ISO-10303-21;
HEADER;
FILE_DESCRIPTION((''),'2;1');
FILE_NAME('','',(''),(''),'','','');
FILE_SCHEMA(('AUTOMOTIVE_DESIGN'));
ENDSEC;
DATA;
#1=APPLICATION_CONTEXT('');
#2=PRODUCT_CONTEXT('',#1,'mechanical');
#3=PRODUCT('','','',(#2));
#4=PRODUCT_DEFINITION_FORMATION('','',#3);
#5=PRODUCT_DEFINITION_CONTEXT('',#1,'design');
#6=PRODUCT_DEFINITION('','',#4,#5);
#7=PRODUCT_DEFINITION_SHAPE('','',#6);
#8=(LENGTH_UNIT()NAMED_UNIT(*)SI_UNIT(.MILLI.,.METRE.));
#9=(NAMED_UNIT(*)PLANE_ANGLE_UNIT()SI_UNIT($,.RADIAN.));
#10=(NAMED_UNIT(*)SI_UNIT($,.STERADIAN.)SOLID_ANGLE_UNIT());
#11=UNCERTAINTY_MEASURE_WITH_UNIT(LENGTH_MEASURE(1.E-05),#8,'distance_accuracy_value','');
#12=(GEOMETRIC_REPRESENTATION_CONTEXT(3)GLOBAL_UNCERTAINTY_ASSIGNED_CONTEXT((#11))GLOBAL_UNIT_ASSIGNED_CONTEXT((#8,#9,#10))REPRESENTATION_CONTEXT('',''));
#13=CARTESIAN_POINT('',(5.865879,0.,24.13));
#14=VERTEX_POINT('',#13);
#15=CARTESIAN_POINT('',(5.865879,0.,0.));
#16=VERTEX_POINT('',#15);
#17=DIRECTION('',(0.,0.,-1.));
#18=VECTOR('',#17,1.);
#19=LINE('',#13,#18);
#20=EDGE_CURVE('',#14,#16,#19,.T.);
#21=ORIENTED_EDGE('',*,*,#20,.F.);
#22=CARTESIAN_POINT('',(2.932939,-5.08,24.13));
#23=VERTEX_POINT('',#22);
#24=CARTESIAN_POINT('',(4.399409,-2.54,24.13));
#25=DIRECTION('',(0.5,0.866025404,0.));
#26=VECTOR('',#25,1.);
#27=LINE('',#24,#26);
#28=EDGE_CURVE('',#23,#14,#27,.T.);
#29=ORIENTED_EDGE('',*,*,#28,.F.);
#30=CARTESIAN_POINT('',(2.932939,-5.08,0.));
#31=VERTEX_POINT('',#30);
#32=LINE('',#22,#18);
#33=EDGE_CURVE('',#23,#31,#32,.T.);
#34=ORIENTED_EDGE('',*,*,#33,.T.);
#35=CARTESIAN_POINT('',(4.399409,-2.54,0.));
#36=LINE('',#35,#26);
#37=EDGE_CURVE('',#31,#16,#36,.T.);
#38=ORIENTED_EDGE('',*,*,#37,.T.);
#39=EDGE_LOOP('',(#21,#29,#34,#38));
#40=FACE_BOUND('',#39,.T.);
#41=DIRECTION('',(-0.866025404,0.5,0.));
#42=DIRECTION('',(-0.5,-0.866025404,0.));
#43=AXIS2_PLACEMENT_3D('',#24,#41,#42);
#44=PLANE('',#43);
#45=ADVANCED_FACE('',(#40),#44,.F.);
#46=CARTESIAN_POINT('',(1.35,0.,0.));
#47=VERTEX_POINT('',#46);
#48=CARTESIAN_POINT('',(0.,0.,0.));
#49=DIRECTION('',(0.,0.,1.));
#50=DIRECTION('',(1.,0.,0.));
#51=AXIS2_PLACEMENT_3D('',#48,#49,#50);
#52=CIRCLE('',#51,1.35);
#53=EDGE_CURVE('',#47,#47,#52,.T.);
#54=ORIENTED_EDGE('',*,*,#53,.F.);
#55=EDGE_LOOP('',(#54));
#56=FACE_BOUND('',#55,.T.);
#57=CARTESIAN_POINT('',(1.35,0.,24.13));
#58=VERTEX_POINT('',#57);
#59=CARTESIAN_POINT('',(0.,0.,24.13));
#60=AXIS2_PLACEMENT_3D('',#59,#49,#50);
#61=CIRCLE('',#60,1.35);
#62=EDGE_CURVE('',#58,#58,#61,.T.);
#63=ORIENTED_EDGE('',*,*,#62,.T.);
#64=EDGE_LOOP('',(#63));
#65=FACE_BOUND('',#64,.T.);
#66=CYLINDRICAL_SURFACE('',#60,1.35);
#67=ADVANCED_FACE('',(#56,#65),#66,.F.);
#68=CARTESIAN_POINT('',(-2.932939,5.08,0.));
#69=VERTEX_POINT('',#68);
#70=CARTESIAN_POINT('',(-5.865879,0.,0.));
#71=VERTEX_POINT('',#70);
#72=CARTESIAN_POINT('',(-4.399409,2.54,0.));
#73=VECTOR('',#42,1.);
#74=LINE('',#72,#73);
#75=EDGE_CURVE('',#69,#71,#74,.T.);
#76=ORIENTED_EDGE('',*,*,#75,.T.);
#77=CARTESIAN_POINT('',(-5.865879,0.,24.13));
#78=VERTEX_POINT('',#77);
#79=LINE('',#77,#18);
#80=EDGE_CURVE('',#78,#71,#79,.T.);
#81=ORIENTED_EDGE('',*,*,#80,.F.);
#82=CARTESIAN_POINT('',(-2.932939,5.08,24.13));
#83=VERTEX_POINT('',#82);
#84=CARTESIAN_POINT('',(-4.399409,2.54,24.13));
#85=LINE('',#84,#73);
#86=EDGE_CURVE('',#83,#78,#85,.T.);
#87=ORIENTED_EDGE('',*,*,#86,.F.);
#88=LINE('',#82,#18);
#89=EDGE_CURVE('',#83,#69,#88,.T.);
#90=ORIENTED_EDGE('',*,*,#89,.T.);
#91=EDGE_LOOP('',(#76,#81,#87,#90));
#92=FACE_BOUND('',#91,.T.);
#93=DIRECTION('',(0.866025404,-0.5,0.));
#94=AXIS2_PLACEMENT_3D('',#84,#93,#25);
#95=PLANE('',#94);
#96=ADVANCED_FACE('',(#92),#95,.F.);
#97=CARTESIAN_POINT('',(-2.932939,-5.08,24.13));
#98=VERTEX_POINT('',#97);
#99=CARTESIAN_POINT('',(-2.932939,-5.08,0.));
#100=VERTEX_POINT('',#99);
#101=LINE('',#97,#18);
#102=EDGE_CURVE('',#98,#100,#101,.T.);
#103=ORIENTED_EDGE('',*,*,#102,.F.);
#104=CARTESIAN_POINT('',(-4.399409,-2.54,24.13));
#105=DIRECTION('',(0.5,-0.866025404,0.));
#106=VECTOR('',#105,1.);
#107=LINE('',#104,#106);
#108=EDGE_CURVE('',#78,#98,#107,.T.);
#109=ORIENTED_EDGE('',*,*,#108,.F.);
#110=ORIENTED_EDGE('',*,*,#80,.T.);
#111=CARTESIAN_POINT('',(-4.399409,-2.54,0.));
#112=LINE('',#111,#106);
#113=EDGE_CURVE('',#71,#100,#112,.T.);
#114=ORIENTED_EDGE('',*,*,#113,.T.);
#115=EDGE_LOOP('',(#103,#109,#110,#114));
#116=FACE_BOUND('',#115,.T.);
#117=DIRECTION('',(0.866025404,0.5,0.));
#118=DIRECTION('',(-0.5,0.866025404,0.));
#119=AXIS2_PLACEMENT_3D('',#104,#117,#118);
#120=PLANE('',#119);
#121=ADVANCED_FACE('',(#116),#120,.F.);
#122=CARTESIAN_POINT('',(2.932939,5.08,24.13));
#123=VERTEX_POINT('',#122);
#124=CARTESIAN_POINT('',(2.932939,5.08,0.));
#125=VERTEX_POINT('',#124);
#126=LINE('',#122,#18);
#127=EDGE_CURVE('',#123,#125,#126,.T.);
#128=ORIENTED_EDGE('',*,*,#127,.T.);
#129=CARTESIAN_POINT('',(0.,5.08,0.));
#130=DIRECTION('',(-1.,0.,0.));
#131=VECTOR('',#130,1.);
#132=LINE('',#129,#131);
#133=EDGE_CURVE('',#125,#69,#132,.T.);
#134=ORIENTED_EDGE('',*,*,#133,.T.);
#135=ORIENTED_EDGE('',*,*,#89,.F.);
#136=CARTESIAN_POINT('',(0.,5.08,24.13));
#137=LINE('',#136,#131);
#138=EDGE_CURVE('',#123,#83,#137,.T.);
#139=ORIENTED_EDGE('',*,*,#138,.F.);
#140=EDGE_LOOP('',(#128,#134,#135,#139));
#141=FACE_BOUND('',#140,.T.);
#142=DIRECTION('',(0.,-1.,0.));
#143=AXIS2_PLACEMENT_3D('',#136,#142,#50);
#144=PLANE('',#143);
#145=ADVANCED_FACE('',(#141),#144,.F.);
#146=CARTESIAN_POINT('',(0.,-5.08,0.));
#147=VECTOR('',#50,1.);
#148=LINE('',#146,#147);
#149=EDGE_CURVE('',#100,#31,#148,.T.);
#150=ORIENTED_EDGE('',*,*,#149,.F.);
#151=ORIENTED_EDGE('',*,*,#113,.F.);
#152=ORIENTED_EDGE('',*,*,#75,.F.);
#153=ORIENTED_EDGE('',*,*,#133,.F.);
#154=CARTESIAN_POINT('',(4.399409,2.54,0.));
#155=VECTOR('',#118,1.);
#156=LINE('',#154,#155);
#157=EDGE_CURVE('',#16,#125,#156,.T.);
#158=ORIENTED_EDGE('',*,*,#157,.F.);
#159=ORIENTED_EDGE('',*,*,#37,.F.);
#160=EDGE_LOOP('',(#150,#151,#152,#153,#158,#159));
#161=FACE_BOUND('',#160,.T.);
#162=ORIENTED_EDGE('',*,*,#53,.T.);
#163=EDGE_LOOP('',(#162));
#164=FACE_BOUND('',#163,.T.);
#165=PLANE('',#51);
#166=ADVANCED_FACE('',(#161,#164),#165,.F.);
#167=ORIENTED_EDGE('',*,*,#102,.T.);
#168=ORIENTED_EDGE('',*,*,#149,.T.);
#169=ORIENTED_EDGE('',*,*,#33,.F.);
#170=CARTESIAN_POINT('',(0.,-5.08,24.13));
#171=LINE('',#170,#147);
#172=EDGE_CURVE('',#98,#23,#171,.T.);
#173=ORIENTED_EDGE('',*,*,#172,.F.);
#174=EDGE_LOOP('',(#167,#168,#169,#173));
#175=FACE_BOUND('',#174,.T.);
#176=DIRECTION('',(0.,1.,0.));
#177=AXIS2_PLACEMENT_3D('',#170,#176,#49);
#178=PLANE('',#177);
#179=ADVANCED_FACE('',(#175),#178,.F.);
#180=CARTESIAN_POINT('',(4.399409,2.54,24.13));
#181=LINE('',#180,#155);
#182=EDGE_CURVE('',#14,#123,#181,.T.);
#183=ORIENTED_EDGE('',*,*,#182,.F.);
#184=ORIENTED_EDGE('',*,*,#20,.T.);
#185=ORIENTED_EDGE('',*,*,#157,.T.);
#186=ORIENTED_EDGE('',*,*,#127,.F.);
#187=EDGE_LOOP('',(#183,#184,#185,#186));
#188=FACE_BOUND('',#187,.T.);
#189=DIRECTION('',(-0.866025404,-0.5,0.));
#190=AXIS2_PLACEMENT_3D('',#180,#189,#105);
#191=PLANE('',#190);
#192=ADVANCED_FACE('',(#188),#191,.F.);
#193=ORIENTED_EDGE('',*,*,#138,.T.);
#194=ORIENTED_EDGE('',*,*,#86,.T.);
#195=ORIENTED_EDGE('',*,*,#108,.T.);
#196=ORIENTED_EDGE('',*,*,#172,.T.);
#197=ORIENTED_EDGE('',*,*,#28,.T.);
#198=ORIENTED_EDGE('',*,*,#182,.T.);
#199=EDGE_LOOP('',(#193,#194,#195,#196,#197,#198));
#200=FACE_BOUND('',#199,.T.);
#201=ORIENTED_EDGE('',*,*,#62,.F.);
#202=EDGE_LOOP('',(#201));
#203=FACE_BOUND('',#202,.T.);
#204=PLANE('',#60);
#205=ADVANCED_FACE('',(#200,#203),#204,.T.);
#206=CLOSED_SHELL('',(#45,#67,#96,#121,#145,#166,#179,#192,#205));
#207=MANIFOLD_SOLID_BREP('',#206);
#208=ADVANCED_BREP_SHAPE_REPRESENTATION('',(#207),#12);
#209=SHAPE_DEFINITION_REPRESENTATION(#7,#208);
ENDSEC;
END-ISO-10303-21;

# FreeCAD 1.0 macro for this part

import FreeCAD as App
import Part
import Sketcher

V = App.Vector
Q = App.Units.Quantity


def add_polygon(sketch, points):
    """Adds a closed chain of lines whose ends are joined by coincident constraints."""
    first, n = sketch.GeometryCount, len(points)
    for a, b in zip(points, points[1:] + points[:1]):
        sketch.addGeometry(Part.LineSegment(App.Vector(*a, 0), App.Vector(*b, 0)), False)
    for i in range(n):
        sketch.addConstraint(Sketcher.Constraint("Coincident", first + i, 2, first + (i + 1) % n, 1))

doc = App.newDocument("Part")
body = doc.addObject("PartDesign::Body", "Body")

sketch1 = body.newObject("Sketcher::SketchObject", "Sketch")
sketch1.AttachmentSupport = (doc.getObject("XY_Plane"), [""])
sketch1.MapMode = "FlatFace"
add_polygon(sketch1, [(-2.9, 5.1), (-4.4, 2.5), (-5.9, 0), (-4.4, -2.5), (-2.9, -5.1), (2.9, -5.1), (4.4, -2.5), (5.9, 0), (4.4, 2.5), (2.9, 5.1)])
sketch1.addConstraint(Sketcher.Constraint("Horizontal", 4))
sketch1.addConstraint(Sketcher.Constraint("Horizontal", 9))
sketch1.addConstraint(Sketcher.Constraint("Symmetric", 0, 2, 5, 2, -1, 1))
sketch1.addConstraint(Sketcher.Constraint("Symmetric", 1, 2, 6, 2, -1, 1))
sketch1.addConstraint(Sketcher.Constraint("Symmetric", 2, 2, 7, 2, -1, 1))
sketch1.addConstraint(Sketcher.Constraint("Symmetric", 3, 2, 8, 2, -1, 1))
sketch1.addConstraint(Sketcher.Constraint("Symmetric", 2, 2, 5, 2, -2))
sketch1.addConstraint(Sketcher.Constraint("PointOnObject", 1, 2, -1))
sketch1.addConstraint(Sketcher.Constraint("Parallel", 0, 1))
sketch1.addConstraint(Sketcher.Constraint("Parallel", 2, 3))
sketch1.addConstraint(Sketcher.Constraint("Parallel", 1, 5))
sketch1.addConstraint(Sketcher.Constraint("Equal", 0, 1))
sketch1.addConstraint(Sketcher.Constraint("Angle", 0, Q("-120 deg")))
sketch1.addConstraint(Sketcher.Constraint("DistanceY", -1, 1, 0, 2, Q("2.54 mm")))
sketch1.addConstraint(Sketcher.Constraint("DistanceX", 4, 1, 4, 2, Q("5.865879 mm")))
pad1 = body.newObject("PartDesign::Pad", "Pad")
pad1.Profile = sketch1
pad1.Length = 24.13

sketch2 = body.newObject("Sketcher::SketchObject", "Sketch001")
sketch2.AttachmentSupport = (doc.getObject("XY_Plane"), [""])
sketch2.MapMode = "FlatFace"
sketch2.AttachmentOffset = App.Placement(V(0, 0, 24.13), App.Rotation())
sketch2.addGeometry(Part.Circle(V(0, 0, 0), V(0, 0, 1), 1.4), False)
sketch2.addConstraint(Sketcher.Constraint("Coincident", 0, 3, -1, 1))
sketch2.addConstraint(Sketcher.Constraint("Diameter", 0, Q("2.7 mm")))
doc.recompute()
hole = body.newObject("PartDesign::Hole", "Hole")
hole.Profile = sketch2
hole.ThreadType = "None"
hole.Diameter = 2.7
hole.DepthType = "ThroughAll"

doc.recompute()
